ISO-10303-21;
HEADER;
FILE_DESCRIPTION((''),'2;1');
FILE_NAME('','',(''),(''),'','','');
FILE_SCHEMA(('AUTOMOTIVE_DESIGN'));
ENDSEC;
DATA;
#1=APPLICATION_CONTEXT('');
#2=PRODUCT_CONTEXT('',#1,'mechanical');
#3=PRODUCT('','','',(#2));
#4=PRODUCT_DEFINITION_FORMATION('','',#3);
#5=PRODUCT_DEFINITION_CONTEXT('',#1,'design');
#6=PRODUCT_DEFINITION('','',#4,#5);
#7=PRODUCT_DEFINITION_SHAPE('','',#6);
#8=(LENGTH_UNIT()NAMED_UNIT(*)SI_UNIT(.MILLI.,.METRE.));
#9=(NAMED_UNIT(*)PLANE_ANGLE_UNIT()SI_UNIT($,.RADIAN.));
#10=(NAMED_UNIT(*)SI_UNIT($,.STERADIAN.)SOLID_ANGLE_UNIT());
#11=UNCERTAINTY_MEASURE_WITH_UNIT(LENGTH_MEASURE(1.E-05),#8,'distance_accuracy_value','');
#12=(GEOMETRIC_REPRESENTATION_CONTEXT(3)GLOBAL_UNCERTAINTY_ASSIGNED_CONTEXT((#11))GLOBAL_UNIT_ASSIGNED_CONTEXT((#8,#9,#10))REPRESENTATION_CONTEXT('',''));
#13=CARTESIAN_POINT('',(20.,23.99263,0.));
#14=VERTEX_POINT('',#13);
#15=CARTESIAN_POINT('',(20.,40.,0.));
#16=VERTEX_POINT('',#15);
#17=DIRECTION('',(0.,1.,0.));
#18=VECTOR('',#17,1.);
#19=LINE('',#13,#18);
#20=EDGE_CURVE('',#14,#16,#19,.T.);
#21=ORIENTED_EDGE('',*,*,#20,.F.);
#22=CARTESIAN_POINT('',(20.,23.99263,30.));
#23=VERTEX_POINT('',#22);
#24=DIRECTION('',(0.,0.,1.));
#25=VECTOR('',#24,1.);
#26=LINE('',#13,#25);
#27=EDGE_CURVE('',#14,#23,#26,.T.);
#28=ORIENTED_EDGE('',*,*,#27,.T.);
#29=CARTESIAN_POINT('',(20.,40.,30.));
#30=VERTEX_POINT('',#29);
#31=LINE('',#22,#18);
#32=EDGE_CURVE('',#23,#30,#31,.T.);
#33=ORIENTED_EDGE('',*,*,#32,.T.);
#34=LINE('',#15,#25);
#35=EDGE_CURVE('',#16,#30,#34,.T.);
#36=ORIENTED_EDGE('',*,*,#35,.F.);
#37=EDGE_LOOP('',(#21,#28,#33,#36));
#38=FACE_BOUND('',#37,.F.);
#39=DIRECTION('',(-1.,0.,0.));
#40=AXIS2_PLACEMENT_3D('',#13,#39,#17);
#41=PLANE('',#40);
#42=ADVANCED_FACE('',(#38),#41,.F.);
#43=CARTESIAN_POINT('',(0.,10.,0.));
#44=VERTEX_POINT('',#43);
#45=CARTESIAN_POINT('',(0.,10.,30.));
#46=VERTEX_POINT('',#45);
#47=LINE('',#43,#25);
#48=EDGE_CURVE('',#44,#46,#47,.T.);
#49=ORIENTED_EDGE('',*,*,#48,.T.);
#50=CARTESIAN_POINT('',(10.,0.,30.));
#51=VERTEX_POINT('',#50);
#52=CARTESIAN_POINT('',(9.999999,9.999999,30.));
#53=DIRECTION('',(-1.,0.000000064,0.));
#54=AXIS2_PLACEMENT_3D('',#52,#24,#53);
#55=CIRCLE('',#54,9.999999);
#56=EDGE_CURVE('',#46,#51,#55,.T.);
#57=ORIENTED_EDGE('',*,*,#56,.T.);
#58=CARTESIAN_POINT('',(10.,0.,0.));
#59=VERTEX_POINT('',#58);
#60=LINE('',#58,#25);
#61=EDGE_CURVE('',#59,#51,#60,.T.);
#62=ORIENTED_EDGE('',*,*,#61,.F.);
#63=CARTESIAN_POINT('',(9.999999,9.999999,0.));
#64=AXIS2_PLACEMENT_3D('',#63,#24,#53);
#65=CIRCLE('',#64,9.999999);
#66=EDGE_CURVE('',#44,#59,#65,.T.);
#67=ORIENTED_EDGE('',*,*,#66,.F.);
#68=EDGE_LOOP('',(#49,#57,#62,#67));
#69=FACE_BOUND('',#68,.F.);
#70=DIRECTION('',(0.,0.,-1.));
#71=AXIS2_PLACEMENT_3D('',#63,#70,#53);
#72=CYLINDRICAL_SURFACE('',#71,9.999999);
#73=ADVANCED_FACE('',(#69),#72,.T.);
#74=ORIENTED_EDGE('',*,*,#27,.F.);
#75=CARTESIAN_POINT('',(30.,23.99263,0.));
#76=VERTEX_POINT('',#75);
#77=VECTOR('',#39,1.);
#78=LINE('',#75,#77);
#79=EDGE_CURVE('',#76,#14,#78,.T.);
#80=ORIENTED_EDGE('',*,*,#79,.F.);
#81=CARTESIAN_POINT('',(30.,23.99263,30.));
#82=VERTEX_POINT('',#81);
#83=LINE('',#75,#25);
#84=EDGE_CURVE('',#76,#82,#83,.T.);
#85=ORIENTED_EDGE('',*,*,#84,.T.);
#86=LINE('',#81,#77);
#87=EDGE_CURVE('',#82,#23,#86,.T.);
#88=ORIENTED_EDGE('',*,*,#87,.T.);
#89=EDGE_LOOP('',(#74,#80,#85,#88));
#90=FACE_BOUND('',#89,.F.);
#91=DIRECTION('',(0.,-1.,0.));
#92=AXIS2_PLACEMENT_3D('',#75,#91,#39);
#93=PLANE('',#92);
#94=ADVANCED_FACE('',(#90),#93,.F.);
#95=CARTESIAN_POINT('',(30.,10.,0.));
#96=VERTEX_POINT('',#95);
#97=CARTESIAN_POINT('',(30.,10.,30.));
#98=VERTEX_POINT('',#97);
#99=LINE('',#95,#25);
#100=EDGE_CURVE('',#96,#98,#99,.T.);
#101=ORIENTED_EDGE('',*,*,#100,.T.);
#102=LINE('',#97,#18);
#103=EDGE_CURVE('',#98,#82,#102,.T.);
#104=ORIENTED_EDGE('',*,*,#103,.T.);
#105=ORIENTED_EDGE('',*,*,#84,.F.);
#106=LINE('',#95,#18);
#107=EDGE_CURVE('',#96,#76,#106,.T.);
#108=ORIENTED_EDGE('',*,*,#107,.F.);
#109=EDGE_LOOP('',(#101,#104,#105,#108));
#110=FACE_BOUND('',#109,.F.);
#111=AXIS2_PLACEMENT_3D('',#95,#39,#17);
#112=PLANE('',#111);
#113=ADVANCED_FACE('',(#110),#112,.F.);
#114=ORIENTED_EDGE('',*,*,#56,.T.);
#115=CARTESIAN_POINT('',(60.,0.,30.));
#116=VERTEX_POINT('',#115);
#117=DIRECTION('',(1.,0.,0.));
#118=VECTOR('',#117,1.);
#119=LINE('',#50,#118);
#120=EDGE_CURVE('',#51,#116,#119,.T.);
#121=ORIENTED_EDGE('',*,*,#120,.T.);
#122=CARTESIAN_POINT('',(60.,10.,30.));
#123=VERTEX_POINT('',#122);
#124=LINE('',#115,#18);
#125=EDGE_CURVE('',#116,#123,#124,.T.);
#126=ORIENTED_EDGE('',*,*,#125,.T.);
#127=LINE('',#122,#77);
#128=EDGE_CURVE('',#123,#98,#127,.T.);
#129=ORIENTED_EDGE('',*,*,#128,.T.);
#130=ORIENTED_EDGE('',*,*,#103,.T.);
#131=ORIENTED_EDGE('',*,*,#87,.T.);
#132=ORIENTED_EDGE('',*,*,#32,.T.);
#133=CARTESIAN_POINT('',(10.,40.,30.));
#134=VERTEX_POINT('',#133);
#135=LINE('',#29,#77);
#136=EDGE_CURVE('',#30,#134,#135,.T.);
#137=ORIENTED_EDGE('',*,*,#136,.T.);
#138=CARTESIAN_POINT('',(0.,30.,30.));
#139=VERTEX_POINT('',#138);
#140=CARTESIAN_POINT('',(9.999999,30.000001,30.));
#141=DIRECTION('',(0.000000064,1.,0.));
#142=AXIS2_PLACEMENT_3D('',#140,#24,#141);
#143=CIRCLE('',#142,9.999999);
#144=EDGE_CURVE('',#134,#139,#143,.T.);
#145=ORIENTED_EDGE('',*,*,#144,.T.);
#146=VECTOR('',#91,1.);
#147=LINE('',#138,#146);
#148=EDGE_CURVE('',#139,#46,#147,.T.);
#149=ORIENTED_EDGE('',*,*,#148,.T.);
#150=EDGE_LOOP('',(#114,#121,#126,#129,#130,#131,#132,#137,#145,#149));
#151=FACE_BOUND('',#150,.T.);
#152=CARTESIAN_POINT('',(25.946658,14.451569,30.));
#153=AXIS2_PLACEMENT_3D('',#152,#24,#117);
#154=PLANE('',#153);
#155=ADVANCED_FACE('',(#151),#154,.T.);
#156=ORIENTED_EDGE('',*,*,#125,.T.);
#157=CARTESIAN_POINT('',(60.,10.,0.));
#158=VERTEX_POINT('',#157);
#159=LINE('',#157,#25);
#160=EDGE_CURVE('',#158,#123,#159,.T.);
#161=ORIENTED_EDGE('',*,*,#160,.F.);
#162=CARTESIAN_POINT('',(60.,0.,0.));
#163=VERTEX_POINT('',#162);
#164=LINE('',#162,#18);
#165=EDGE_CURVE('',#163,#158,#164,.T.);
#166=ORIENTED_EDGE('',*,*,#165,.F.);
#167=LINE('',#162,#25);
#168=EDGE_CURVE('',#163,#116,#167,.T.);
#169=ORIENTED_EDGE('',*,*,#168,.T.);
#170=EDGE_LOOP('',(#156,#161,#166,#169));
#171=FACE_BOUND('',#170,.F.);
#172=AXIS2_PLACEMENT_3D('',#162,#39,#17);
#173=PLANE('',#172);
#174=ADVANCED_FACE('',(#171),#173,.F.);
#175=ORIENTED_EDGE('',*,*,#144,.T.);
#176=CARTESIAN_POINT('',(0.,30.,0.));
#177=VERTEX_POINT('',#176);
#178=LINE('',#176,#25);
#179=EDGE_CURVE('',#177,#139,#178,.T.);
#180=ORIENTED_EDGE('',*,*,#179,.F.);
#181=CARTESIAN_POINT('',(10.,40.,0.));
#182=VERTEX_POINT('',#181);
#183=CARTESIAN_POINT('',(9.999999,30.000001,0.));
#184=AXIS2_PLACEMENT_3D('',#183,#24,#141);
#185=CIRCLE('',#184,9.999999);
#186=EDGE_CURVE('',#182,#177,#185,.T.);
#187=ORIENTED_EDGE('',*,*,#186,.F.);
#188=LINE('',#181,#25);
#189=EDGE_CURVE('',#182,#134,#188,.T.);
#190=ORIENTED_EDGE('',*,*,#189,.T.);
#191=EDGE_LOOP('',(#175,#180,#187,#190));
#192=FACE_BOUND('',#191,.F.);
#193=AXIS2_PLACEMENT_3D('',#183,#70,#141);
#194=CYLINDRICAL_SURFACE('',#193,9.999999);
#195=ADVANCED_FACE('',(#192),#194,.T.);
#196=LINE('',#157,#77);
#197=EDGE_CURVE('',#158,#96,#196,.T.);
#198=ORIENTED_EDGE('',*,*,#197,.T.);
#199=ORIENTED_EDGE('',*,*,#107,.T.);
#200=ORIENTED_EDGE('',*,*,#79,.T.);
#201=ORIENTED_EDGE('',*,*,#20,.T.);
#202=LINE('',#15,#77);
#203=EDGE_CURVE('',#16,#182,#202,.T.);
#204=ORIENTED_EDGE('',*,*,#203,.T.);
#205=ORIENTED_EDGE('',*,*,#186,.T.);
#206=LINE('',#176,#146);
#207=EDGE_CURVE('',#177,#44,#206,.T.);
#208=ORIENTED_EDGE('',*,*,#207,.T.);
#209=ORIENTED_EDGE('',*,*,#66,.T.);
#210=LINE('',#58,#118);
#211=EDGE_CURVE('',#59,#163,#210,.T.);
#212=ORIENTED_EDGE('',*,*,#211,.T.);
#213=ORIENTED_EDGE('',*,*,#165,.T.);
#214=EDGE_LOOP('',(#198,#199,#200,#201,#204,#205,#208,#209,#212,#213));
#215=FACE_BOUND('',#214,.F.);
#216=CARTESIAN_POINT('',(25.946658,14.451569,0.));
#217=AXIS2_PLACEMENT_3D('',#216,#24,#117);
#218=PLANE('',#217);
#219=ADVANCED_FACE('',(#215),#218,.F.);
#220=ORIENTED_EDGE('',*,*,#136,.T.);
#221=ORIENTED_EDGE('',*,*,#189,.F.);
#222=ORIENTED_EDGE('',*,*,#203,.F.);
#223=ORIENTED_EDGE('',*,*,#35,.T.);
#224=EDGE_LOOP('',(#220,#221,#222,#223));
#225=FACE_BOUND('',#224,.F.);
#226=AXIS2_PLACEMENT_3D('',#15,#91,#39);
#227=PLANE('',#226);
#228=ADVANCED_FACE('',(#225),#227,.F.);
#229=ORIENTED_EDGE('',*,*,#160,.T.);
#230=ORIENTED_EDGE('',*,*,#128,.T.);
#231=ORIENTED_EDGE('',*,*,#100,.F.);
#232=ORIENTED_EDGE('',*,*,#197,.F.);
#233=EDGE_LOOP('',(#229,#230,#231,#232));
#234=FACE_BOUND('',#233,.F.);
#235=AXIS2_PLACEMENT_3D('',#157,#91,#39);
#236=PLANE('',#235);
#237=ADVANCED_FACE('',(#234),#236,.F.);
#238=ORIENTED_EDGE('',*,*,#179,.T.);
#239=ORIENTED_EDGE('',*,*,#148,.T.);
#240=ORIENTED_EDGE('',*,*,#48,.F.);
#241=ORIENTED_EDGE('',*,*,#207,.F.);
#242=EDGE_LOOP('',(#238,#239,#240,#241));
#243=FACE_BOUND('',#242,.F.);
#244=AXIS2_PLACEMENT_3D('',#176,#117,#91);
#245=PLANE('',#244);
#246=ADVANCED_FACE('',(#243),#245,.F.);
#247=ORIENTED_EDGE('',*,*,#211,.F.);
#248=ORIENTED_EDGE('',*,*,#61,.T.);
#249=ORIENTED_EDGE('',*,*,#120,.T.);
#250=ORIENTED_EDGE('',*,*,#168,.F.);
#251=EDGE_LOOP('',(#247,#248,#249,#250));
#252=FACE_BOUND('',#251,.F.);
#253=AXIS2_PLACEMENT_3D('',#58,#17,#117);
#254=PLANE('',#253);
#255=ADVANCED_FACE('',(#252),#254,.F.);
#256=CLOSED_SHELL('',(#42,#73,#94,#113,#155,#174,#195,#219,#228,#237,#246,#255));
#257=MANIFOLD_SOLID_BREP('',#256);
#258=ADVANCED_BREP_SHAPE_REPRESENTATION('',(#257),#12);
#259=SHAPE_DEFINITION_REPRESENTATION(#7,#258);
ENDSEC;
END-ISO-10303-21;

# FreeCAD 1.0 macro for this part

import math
import FreeCAD as App
import Part
import Sketcher
from FreeCAD import Vector
Q = App.Units.Quantity

doc = App.newDocument("Part")
body = doc.addObject("PartDesign::Body", "Body")

sketch1 = body.newObject("Sketcher::SketchObject", "Sketch")
sketch1.AttachmentSupport = (doc.getObject("XY_Plane"), [""])
sketch1.MapMode = "FlatFace"
sketch1.addGeometry([
    Part.ArcOfCircle(Part.Circle(Vector(9.999999, 9.999999, 0), Vector(0, 0, 1), 9.999999), math.radians(179.999996), math.radians(270.000004)),
    Part.LineSegment(Vector(10, 0, 0), Vector(60, 0, 0)),
    Part.LineSegment(Vector(60, 0, 0), Vector(60, 10, 0)),
    Part.LineSegment(Vector(60, 10, 0), Vector(30, 10, 0)),
    Part.LineSegment(Vector(30, 10, 0), Vector(30, 23.99263, 0)),
    Part.LineSegment(Vector(30, 23.99263, 0), Vector(20, 23.99263, 0)),
    Part.LineSegment(Vector(20, 23.99263, 0), Vector(20, 40, 0)),
    Part.LineSegment(Vector(20, 40, 0), Vector(10, 40, 0)),
    Part.ArcOfCircle(Part.Circle(Vector(9.999999, 30.000001, 0), Vector(0, 0, 1), 9.999999), math.radians(89.999996), math.radians(180.000004)),
    Part.LineSegment(Vector(0, 30, 0), Vector(0, 10, 0)),
], False)
sketch1.addConstraint([
    Sketcher.Constraint("Tangent", 0, 2, 1, 1),
    Sketcher.Constraint("Coincident", 1, 2, 2, 1),
    Sketcher.Constraint("Coincident", 2, 2, 3, 1),
    Sketcher.Constraint("Coincident", 3, 2, 4, 1),
    Sketcher.Constraint("Coincident", 4, 2, 5, 1),
    Sketcher.Constraint("Coincident", 5, 2, 6, 1),
    Sketcher.Constraint("Coincident", 6, 2, 7, 1),
    Sketcher.Constraint("Tangent", 7, 2, 8, 1),
    Sketcher.Constraint("Tangent", 8, 2, 9, 1),
    Sketcher.Constraint("Tangent", 9, 2, 0, 1),
    Sketcher.Constraint("Horizontal", 1),
    Sketcher.Constraint("Vertical", 2),
    Sketcher.Constraint("Horizontal", 3),
    Sketcher.Constraint("Vertical", 4),
    Sketcher.Constraint("Horizontal", 5),
    Sketcher.Constraint("Vertical", 6),
    Sketcher.Constraint("Horizontal", 7),
    Sketcher.Constraint("Vertical", 9),
    Sketcher.Constraint("Equal", 0, 8),
    Sketcher.Constraint("PointOnObject", 0, 2, -1),
    Sketcher.Constraint("PointOnObject", 8, 2, -2),
    Sketcher.Constraint("Horizontal", 0, 3, 2, 2),
    Sketcher.Constraint("Equal", 5, 7),
    Sketcher.Constraint("Equal", 7, 2),
    Sketcher.Constraint("Radius", 0, Q("9.999999 mm")),
    Sketcher.Constraint("DistanceX", 1, 1, 1, 2, Q("50 mm")),
    Sketcher.Constraint("DistanceY", 9, 2, 9, 1, Q("20 mm")),
    Sketcher.Constraint("DistanceY", 4, 1, 4, 2, Q("13.99263 mm")),
])
pad1 = body.newObject("PartDesign::Pad", "Pad")
pad1.Profile = sketch1
pad1.Length = 30

doc.recompute()
